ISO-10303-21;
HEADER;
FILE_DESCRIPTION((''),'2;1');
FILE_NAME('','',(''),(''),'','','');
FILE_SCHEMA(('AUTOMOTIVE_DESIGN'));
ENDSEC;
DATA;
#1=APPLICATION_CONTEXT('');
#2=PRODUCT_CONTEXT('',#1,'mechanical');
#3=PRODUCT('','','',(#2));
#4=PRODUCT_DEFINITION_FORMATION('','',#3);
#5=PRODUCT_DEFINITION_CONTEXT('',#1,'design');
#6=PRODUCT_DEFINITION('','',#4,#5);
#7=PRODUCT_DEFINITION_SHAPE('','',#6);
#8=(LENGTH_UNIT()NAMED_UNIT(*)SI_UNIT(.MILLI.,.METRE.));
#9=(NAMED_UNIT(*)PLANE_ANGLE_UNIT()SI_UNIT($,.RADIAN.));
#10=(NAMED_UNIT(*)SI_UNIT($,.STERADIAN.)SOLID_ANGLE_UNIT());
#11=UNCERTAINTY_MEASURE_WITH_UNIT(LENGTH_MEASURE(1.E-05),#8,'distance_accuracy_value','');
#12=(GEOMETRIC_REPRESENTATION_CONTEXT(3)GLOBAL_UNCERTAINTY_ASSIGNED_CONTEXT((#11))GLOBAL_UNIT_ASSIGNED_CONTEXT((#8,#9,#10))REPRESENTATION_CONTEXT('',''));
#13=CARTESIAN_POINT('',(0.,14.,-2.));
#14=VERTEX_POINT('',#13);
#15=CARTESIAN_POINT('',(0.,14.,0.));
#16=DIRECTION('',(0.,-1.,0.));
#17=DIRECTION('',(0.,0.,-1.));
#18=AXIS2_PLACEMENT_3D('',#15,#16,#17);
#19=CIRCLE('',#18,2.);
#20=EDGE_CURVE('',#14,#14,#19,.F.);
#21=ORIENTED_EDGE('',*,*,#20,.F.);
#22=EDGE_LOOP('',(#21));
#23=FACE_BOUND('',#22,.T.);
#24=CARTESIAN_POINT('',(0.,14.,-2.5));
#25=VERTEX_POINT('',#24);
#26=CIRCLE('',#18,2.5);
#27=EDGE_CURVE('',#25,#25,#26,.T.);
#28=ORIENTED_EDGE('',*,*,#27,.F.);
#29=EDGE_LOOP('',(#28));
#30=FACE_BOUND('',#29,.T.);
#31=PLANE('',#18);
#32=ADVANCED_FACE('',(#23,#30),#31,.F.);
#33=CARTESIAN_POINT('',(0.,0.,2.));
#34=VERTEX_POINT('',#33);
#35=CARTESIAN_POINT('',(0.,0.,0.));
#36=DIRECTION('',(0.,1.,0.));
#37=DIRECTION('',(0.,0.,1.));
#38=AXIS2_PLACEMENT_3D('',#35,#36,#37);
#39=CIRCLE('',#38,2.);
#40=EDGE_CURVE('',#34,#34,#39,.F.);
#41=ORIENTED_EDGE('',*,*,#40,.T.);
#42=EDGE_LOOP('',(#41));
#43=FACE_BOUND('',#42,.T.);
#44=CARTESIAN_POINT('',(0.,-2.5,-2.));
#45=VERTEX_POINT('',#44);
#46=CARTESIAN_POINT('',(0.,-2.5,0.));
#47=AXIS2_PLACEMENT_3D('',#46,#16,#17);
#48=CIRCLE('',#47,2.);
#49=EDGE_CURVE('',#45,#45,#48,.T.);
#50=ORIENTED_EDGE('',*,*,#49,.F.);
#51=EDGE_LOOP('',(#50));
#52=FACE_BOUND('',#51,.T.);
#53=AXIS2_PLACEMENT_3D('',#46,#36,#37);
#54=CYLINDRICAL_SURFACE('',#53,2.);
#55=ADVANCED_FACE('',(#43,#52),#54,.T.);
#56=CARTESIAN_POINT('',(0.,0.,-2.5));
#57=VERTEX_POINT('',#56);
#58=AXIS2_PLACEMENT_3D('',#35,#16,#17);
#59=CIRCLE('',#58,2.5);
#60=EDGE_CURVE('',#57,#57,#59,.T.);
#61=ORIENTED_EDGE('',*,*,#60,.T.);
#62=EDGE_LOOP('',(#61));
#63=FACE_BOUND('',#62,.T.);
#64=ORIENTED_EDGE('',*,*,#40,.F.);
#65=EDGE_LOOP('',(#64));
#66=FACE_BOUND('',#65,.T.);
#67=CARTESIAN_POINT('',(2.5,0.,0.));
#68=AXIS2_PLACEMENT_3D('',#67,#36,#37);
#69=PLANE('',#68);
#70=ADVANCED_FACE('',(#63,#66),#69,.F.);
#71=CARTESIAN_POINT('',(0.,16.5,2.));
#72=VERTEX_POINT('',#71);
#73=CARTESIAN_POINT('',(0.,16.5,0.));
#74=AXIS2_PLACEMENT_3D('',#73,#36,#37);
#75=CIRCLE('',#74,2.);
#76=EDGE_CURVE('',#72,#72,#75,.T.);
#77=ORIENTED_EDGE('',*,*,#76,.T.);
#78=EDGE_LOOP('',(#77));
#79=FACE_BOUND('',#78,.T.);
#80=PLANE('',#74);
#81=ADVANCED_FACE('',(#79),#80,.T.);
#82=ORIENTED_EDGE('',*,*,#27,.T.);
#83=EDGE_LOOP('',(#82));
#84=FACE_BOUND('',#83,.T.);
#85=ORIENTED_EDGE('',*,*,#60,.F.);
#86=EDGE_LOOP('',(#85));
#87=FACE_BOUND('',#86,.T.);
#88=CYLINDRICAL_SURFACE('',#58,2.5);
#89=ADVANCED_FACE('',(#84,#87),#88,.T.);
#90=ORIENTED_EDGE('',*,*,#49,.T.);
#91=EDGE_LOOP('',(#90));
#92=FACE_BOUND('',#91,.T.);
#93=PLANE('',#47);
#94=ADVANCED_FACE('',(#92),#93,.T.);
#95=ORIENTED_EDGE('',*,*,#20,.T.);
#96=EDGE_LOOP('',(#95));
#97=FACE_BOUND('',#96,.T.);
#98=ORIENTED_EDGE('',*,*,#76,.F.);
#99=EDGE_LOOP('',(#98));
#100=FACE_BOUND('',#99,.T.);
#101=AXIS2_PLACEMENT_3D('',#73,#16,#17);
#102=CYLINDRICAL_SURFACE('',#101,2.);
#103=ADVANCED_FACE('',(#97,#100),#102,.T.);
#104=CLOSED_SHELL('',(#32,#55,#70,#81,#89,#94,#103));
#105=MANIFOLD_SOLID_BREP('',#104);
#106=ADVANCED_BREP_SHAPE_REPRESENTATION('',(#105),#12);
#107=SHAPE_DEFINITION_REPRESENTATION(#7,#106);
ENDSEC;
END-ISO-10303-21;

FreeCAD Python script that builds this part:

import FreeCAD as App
import Part
import Sketcher
from FreeCAD import Vector


def add_polygon(sketch, points):
    """Adds a closed chain of lines whose ends are joined by coincident constraints."""
    first, n = sketch.GeometryCount, len(points)
    for a, b in zip(points, points[1:] + points[:1]):
        sketch.addGeometry(Part.LineSegment(App.Vector(*a, 0), App.Vector(*b, 0)), False)
    for i in range(n):
        sketch.addConstraint(Sketcher.Constraint("Coincident", first + i, 2, first + (i + 1) % n, 1))

doc = App.newDocument("Part")
body = doc.addObject("PartDesign::Body", "Body")

# Sketch on XY plane
sketch1 = doc.addObject("Sketcher::SketchObject", "Sketch")
body.addObject(sketch1)
sketch1.AttachmentSupport = (doc.XY_Plane, [""])
sketch1.MapMode = "FlatFace"
add_polygon(sketch1, [(-2.5, 14), (-2.5, 0), (0, 0), (0, 14)])  # lines 0-3
sketch1.addConstraint([
    Sketcher.Constraint("Vertical", 0),
    Sketcher.Constraint("Horizontal", 1),
    Sketcher.Constraint("Vertical", 2),
    Sketcher.Constraint("Horizontal", 3),
    Sketcher.Constraint("Coincident", 1, 2, -1, 1),
    Sketcher.Constraint("DistanceY", 0, 2, 0, 1, 14.0),
    Sketcher.Constraint("DistanceX", 1, 1, 1, 2, 2.5),
])
revolution = doc.addObject("PartDesign::Revolution", "Revolution")
body.addObject(revolution)
revolution.Profile = sketch1
revolution.ReferenceAxis = (sketch1, ["V_Axis"])
revolution.Angle = 360

# Sketch on XZ plane
sketch2 = doc.addObject("Sketcher::SketchObject", "Sketch001")
body.addObject(sketch2)
sketch2.AttachmentSupport = (doc.XZ_Plane, [""])
sketch2.MapMode = "FlatFace"
sketch2.AttachmentOffset = App.Placement(Vector(0, 0, -14), App.Rotation())
sketch2.addGeometry(Part.Circle(Vector(0, 0, 0), Vector(0, 0, 1), 2), False)
sketch2.addConstraint([
    Sketcher.Constraint("Coincident", 0, 3, -1, 1),
    Sketcher.Constraint("Diameter", 0, 4.0),
])
pad1 = doc.addObject("PartDesign::Pad", "Pad")
body.addObject(pad1)
pad1.Profile = sketch2
pad1.Length = 2.5
pad1.Reversed = True

# Sketch on XZ plane
sketch3 = doc.addObject("Sketcher::SketchObject", "Sketch002")
body.addObject(sketch3)
sketch3.AttachmentSupport = (doc.XZ_Plane, [""])
sketch3.MapMode = "FlatFace"
sketch3.AttachmentOffset = App.Placement(Vector(0, 0, 2.5), App.Rotation())
sketch3.addGeometry(Part.Circle(Vector(0, 0, 0), Vector(0, 0, 1), 2), False)
sketch3.addConstraint([
    Sketcher.Constraint("Coincident", 0, 3, -1, 1),
    Sketcher.Constraint("Diameter", 0, 4.0),
])
pad2 = doc.addObject("PartDesign::Pad", "Pad001")
body.addObject(pad2)
pad2.Profile = sketch3
pad2.Length = 2.5
pad2.Reversed = True

doc.recompute()
